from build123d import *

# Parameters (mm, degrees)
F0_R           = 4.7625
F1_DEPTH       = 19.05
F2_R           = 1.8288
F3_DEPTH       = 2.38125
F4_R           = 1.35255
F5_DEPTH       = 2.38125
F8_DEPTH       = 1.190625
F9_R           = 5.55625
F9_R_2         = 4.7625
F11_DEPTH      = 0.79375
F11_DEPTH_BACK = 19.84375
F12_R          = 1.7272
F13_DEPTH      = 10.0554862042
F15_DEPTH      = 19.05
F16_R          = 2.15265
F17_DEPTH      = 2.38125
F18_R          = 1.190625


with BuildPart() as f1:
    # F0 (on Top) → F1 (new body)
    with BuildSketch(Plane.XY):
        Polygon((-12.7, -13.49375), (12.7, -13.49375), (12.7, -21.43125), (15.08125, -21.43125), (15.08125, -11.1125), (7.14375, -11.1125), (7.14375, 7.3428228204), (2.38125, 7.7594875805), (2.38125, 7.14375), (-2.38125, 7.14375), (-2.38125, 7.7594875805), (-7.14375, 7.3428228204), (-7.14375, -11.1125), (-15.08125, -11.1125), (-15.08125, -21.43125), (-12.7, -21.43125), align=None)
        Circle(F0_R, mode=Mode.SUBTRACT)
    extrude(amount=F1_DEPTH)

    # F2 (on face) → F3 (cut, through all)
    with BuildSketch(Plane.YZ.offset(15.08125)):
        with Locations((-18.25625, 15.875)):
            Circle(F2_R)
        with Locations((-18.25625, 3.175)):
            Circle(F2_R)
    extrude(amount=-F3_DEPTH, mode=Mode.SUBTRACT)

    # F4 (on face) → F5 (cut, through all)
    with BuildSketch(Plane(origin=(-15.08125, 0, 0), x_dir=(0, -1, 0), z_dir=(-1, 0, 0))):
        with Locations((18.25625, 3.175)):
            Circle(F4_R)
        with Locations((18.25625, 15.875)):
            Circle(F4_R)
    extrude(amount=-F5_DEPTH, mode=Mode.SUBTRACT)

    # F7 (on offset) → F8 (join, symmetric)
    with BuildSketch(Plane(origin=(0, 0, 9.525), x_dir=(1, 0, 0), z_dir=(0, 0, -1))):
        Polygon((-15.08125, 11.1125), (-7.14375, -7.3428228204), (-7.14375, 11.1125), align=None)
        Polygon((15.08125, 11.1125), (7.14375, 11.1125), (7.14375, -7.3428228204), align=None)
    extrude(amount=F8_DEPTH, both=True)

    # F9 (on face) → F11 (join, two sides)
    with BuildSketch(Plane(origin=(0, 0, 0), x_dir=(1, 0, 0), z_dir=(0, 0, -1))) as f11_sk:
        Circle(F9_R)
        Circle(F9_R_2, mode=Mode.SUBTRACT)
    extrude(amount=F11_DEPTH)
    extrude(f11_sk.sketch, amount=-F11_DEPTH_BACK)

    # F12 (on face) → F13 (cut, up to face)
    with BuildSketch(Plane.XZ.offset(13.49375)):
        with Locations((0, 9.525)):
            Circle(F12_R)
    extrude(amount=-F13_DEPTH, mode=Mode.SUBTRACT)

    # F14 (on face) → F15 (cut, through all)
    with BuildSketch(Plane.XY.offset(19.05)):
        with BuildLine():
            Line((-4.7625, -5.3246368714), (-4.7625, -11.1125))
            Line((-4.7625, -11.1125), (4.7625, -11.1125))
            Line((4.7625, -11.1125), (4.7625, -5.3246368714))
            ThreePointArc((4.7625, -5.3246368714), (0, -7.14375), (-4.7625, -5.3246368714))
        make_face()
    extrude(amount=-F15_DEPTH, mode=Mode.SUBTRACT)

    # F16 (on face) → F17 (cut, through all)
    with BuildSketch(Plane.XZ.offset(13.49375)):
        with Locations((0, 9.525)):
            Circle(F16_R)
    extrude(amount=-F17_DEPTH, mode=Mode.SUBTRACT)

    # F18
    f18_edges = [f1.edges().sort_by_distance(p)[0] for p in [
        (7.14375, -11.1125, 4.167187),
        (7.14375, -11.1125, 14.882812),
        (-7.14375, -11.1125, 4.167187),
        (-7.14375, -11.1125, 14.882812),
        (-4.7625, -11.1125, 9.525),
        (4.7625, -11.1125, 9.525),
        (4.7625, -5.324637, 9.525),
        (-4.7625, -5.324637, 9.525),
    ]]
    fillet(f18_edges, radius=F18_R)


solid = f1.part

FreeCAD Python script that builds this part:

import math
import FreeCAD as App
import Part
import Sketcher
from FreeCAD import Vector
Q = App.Units.Quantity


def edges_at(feature, points):
    """Names of the edges that pass closest to the given points."""
    edges = feature.Shape.Edges
    near = lambda p: min(range(len(edges)), key=lambda i: edges[i].distToShape(Part.Vertex(*p))[0])
    return sorted({f"Edge{near(p) + 1}" for p in points})


def add_polygon(sketch, points):
    """Adds a closed chain of lines whose ends are joined by coincident constraints."""
    first, n = sketch.GeometryCount, len(points)
    for a, b in zip(points, points[1:] + points[:1]):
        sketch.addGeometry(Part.LineSegment(App.Vector(*a, 0), App.Vector(*b, 0)), False)
    for i in range(n):
        sketch.addConstraint(Sketcher.Constraint("Coincident", first + i, 2, first + (i + 1) % n, 1))

doc = App.newDocument("Part")
params = doc.addObject("Spreadsheet::Sheet", "Params")
for row, (alias, value) in enumerate([
    ("sketch1_width", "1 in"),
    ("sketch1_diameter", "0.375 in"),
    ("sketch1_width2", "0.09375 in"),
    ("sketch1_width3", "0.3125 in"),
    ("sketch1_height", "0.40625 in"),
    ("pad1_length", "0.75 in"),
    ("sketch2_diameter", "0.144 in"),
    ("pocket1_length", "0.09375 in"),
    ("sketch4_width", "0.3125 in"),
    ("pad2_length", "0.09375 in"),
    ("sketch5_diameter", "0.4375 in"),
    ("sketch5_diameter2", "0.375 in"),
    ("pad3_length", "0.03125 in"),
    ("pad3_length2", "0.78125 in"),
    ("sketch6_diameter", "0.136 in"),
    ("pocket3_length", "10.055486 mm"),
    ("sketch7_radius", "0.28125 in"),
    ("sketch7_width", "0.375 in"),
    ("pocket5_length", "0.09375 in"),
    ("fillet_radius", "0.046875 in"),
], start=1):
    params.set(f"A{row}", alias)
    params.set(f"B{row}", "=" + value)
    params.setAlias(f"B{row}", alias)

body = doc.addObject("PartDesign::Body", "Body")

# Sketch on XY plane
sketch1 = body.newObject("Sketcher::SketchObject", "Sketch")
sketch1.AttachmentSupport = (doc.getObject("XY_Plane"), [""])
sketch1.MapMode = "FlatFace"
add_polygon(sketch1, [(-12.7, -13.5), (12.7, -13.5), (12.7, -21.4), (15.1, -21.4), (15.1, -11.1), (7.1, -11.1), (7.1, 7.3), (2.4, 7.8), (2.4, 7.1), (-2.4, 7.1), (-2.4, 7.8), (-7.1, 7.3), (-7.1, -11.1), (-15.1, -11.1), (-15.1, -21.4), (-12.7, -21.4)])  # lines 0-15
sketch1.addGeometry(Part.Circle(Vector(0, 0, 0), Vector(0, 0, 1), 4.8), False)  # 16
sketch1.addConstraint(Sketcher.Constraint("Horizontal", 0))
sketch1.addConstraint(Sketcher.Constraint("Vertical", 1))
sketch1.addConstraint(Sketcher.Constraint("Horizontal", 2))
sketch1.addConstraint(Sketcher.Constraint("Vertical", 3))
sketch1.addConstraint(Sketcher.Constraint("Horizontal", 4))
sketch1.addConstraint(Sketcher.Constraint("Vertical", 5))
sketch1.addConstraint(Sketcher.Constraint("Vertical", 7))
sketch1.addConstraint(Sketcher.Constraint("Horizontal", 8))
sketch1.addConstraint(Sketcher.Constraint("Vertical", 9))
sketch1.addConstraint(Sketcher.Constraint("Vertical", 11))
sketch1.addConstraint(Sketcher.Constraint("Horizontal", 12))
sketch1.addConstraint(Sketcher.Constraint("Vertical", 13))
sketch1.addConstraint(Sketcher.Constraint("Horizontal", 14))
sketch1.addConstraint(Sketcher.Constraint("Vertical", 15))
sketch1.addConstraint(Sketcher.Constraint("Coincident", 16, 3, -1, 1))
sketch1.addConstraint(Sketcher.Constraint("Symmetric", 6, 2, 9, 2, -2))
sketch1.addConstraint(Sketcher.Constraint("Symmetric", 5, 2, 10, 2, -2))
sketch1.addConstraint(Sketcher.Constraint("Symmetric", 3, 2, 12, 2, -2))
sketch1.addConstraint(Sketcher.Constraint("Symmetric", 1, 2, 14, 2, -2))
sketch1.addConstraint(Sketcher.Constraint("Equal", 12, 1))
sketch1.addConstraint(Sketcher.Constraint("DistanceX", 0, 1, 0, 2, Q("1 in")))
sketch1.addConstraint(Sketcher.Constraint("Diameter", 16, Q("0.375 in")))
sketch1.addConstraint(Sketcher.Constraint("Angle", 6, Q("175 deg")))
sketch1.addConstraint(Sketcher.Constraint("DistanceX", 6, 2, 3, 2, Q("0.5 in")))
sketch1.addConstraint(Sketcher.Constraint("DistanceX", 2, 1, 2, 2, Q("0.09375 in")))
sketch1.addConstraint(Sketcher.Constraint("DistanceX", 4, 2, 4, 1, Q("0.3125 in")))
sketch1.addConstraint(Sketcher.Constraint("DistanceY", 3, 1, 3, 2, Q("0.40625 in")))
sketch1.addConstraint(Sketcher.Constraint("DistanceY", 0, 2, -1, 1, Q("0.53125 in")))
sketch1.addConstraint(Sketcher.Constraint("DistanceY", -1, 1, 7, 2, Q("0.28125 in")))
sketch1.addConstraint(Sketcher.Constraint("DistanceY", 5, 1, 5, 2, 18.455323))
sketch1.setExpression("Constraints[36]", "Params.sketch1_width")
sketch1.setExpression("Constraints[37]", "Params.sketch1_diameter")
sketch1.setExpression("Constraints[40]", "Params.sketch1_width2")
sketch1.setExpression("Constraints[41]", "Params.sketch1_width3")
sketch1.setExpression("Constraints[42]", "Params.sketch1_height")
pad1 = body.newObject("PartDesign::Pad", "Pad")
pad1.Profile = sketch1
pad1.setExpression("Length", "Params.pad1_length")

# Sketch on YZ plane
sketch2 = body.newObject("Sketcher::SketchObject", "Sketch001")
sketch2.AttachmentSupport = (doc.getObject("YZ_Plane"), [""])
sketch2.MapMode = "FlatFace"
sketch2.AttachmentOffset = App.Placement(Vector(0, 0, 0.59375 * 25.4), App.Rotation())
sketch2.addGeometry(Part.Circle(Vector(-18.3, 15.9, 0), Vector(0, 0, 1), 1.8), False)
sketch2.addGeometry(Part.Circle(Vector(-18.3, 3.2, 0), Vector(0, 0, 1), 1.8), False)
sketch2.addConstraint(Sketcher.Constraint("Equal", 0, 1))
sketch2.addConstraint(Sketcher.Constraint("Vertical", 0, 3, 1, 3))
sketch2.addConstraint(Sketcher.Constraint("Diameter", 0, Q("0.144 in")))
sketch2.addConstraint(Sketcher.Constraint("DistanceY", 1, 3, 0, 3, Q("0.5 in")))
sketch2.addConstraint(Sketcher.Constraint("DistanceX", 0, 3, -1, 1, Q("0.71875 in")))
sketch2.addConstraint(Sketcher.Constraint("DistanceY", -1, 1, 0, 3, Q("0.625 in")))
sketch2.setExpression("Constraints[2]", "Params.sketch2_diameter")
pocket1 = body.newObject("PartDesign::Pocket", "Pocket")
pocket1.Profile = sketch2
pocket1.setExpression("Length", "Params.pocket1_length")

# Sketch on YZ plane
sketch3 = body.newObject("Sketcher::SketchObject", "Sketch002")
sketch3.AttachmentSupport = (doc.getObject("YZ_Plane"), [""])
sketch3.MapMode = "FlatFace"
sketch3.AttachmentOffset = App.Placement(Vector(0, 0, -0.59375 * 25.4), App.Rotation())
sketch3.addGeometry(Part.Circle(Vector(-18.3, 3.2, 0), Vector(0, 0, 1), 1.4), False)
sketch3.addGeometry(Part.Circle(Vector(-18.3, 15.9, 0), Vector(0, 0, 1), 1.4), False)
sketch3.addConstraint(Sketcher.Constraint("Equal", 0, 1))
sketch3.addConstraint(Sketcher.Constraint("Vertical", 0, 3, 1, 3))
sketch3.addConstraint(Sketcher.Constraint("Diameter", 0, Q("0.1065 in")))
sketch3.addConstraint(Sketcher.Constraint("DistanceY", 0, 3, 1, 3, Q("0.5 in")))
sketch3.addConstraint(Sketcher.Constraint("DistanceX", 0, 3, -1, 1, Q("0.71875 in")))
sketch3.addConstraint(Sketcher.Constraint("DistanceY", -1, 1, 0, 3, Q("0.125 in")))
pocket2 = body.newObject("PartDesign::Pocket", "Pocket001")
pocket2.Profile = sketch3
pocket2.Type = "ThroughAll"
pocket2.Reversed = True

# Sketch on XY plane
sketch4 = body.newObject("Sketcher::SketchObject", "Sketch003")
sketch4.AttachmentSupport = (doc.getObject("XY_Plane"), [""])
sketch4.MapMode = "FlatFace"
sketch4.AttachmentOffset = App.Placement(Vector(0, 0, 0.375 * 25.4), App.Rotation())
add_polygon(sketch4, [(-15, -11), (-7, 7), (-7, -11)])  # lines 0-2
add_polygon(sketch4, [(15, -11), (7, -11), (7, 7)])  # lines 3-5
sketch4.addConstraint(Sketcher.Constraint("Vertical", 1))
sketch4.addConstraint(Sketcher.Constraint("Horizontal", 2))
sketch4.addConstraint(Sketcher.Constraint("Horizontal", 3))
sketch4.addConstraint(Sketcher.Constraint("Vertical", 4))
sketch4.addConstraint(Sketcher.Constraint("Symmetric", 1, 2, 3, 2, -2))
sketch4.addConstraint(Sketcher.Constraint("Horizontal", 0, 2, 4, 2))
sketch4.addConstraint(Sketcher.Constraint("Equal", 2, 3))
sketch4.addConstraint(Sketcher.Constraint("DistanceX", 2, 2, 2, 1, Q("0.3125 in")))
sketch4.addConstraint(Sketcher.Constraint("DistanceX", 0, 2, -1, 1, Q("0.28125 in")))
sketch4.addConstraint(Sketcher.Constraint("DistanceY", 1, 2, -1, 1, Q("0.4375 in")))
sketch4.addConstraint(Sketcher.Constraint("Distance", 0, 20.089869))
sketch4.setExpression("Constraints[13]", "Params.sketch4_width")
pad2 = body.newObject("PartDesign::Pad", "Pad001")
pad2.Profile = sketch4
pad2.setExpression("Length", "Params.pad2_length")
pad2.Midplane = True

# Sketch on XY plane
sketch5 = body.newObject("Sketcher::SketchObject", "Sketch004")
sketch5.AttachmentSupport = (doc.getObject("XY_Plane"), [""])
sketch5.MapMode = "FlatFace"
sketch5.addGeometry(Part.Circle(Vector(0, 0, 0), Vector(0, 0, 1), 5.6), False)
sketch5.addGeometry(Part.Circle(Vector(0, 0, 0), Vector(0, 0, 1), 4.8), False)
sketch5.addConstraint(Sketcher.Constraint("Coincident", 0, 3, -1, 1))
sketch5.addConstraint(Sketcher.Constraint("Coincident", 1, 3, -1, 1))
sketch5.addConstraint(Sketcher.Constraint("Diameter", 0, Q("0.4375 in")))
sketch5.addConstraint(Sketcher.Constraint("Diameter", 1, Q("0.375 in")))
sketch5.setExpression("Constraints[2]", "Params.sketch5_diameter")
sketch5.setExpression("Constraints[3]", "Params.sketch5_diameter2")
pad3 = body.newObject("PartDesign::Pad", "Pad002")
pad3.Profile = sketch5
pad3.Type = "TwoLengths"
pad3.setExpression("Length", "Params.pad3_length")
pad3.setExpression("Length2", "Params.pad3_length2")
pad3.Reversed = True

# Sketch on XZ plane
sketch6 = body.newObject("Sketcher::SketchObject", "Sketch005")
sketch6.AttachmentSupport = (doc.getObject("XZ_Plane"), [""])
sketch6.MapMode = "FlatFace"
sketch6.AttachmentOffset = App.Placement(Vector(0, 0, 0.53125 * 25.4), App.Rotation())
sketch6.addGeometry(Part.Circle(Vector(0, 9.5, 0), Vector(0, 0, 1), 1.7), False)
sketch6.addConstraint(Sketcher.Constraint("PointOnObject", 0, 3, -2))
sketch6.addConstraint(Sketcher.Constraint("Diameter", 0, Q("0.136 in")))
sketch6.addConstraint(Sketcher.Constraint("DistanceY", -1, 1, 0, 3, Q("0.375 in")))
sketch6.setExpression("Constraints[1]", "Params.sketch6_diameter")
pocket3 = body.newObject("PartDesign::Pocket", "Pocket002")
pocket3.Profile = sketch6
pocket3.setExpression("Length", "Params.pocket3_length")

# Sketch on XY plane
sketch7 = body.newObject("Sketcher::SketchObject", "Sketch006")
sketch7.AttachmentSupport = (doc.getObject("XY_Plane"), [""])
sketch7.MapMode = "FlatFace"
sketch7.AttachmentOffset = App.Placement(Vector(0, 0, 0.75 * 25.4), App.Rotation())
sketch7.addGeometry(Part.LineSegment(Vector(-5, -5, 0), Vector(-5, -11, 0)), False)
sketch7.addGeometry(Part.LineSegment(Vector(-5, -11, 0), Vector(5, -11, 0)), False)
sketch7.addGeometry(Part.LineSegment(Vector(5, -11, 0), Vector(5, -5, 0)), False)
sketch7.addGeometry(Part.ArcOfCircle(Part.Circle(Vector(0, 0, 0), Vector(0, 0, 1), 7), math.radians(-132), math.radians(-48)), False)
sketch7.addConstraint(Sketcher.Constraint("Coincident", 0, 2, 1, 1))
sketch7.addConstraint(Sketcher.Constraint("Coincident", 1, 2, 2, 1))
sketch7.addConstraint(Sketcher.Constraint("Coincident", 2, 2, 3, 2))
sketch7.addConstraint(Sketcher.Constraint("Coincident", 3, 1, 0, 1))
sketch7.addConstraint(Sketcher.Constraint("Vertical", 0))
sketch7.addConstraint(Sketcher.Constraint("Horizontal", 1))
sketch7.addConstraint(Sketcher.Constraint("Vertical", 2))
sketch7.addConstraint(Sketcher.Constraint("Coincident", 3, 3, -1, 1))
sketch7.addConstraint(Sketcher.Constraint("Horizontal", 2, 2, 3, 1))
sketch7.addConstraint(Sketcher.Constraint("Radius", 3, Q("0.28125 in")))
sketch7.addConstraint(Sketcher.Constraint("DistanceX", 1, 1, 1, 2, Q("0.375 in")))
sketch7.addConstraint(Sketcher.Constraint("DistanceY", 0, 2, -1, 1, Q("0.4375 in")))
sketch7.setExpression("Constraints[9]", "Params.sketch7_radius")
sketch7.setExpression("Constraints[10]", "Params.sketch7_width")
pocket4 = body.newObject("PartDesign::Pocket", "Pocket003")
pocket4.Profile = sketch7
pocket4.Type = "ThroughAll"

# Sketch on XZ plane
sketch8 = body.newObject("Sketcher::SketchObject", "Sketch007")
sketch8.AttachmentSupport = (doc.getObject("XZ_Plane"), [""])
sketch8.MapMode = "FlatFace"
sketch8.AttachmentOffset = App.Placement(Vector(0, 0, 0.53125 * 25.4), App.Rotation())
sketch8.addGeometry(Part.Circle(Vector(0, 9.5, 0), Vector(0, 0, 1), 2.2), False)
sketch8.addConstraint(Sketcher.Constraint("PointOnObject", 0, 3, -2))
sketch8.addConstraint(Sketcher.Constraint("Diameter", 0, Q("0.1695 in")))
sketch8.addConstraint(Sketcher.Constraint("DistanceY", -1, 1, 0, 3, Q("0.375 in")))
pocket5 = body.newObject("PartDesign::Pocket", "Pocket004")
pocket5.Profile = sketch8
pocket5.setExpression("Length", "Params.pocket5_length")
doc.recompute()

fillet = body.newObject("PartDesign::Fillet", "Fillet")
fillet.Base = (pocket5, edges_at(pocket5, [
    (7.144, -11.113, 4.167),
    (7.144, -11.113, 14.883),
    (-7.144, -11.113, 4.167),
    (-7.144, -11.113, 14.883),
    (-4.763, -11.113, 9.525),
    (4.763, -11.113, 9.525),
    (4.763, -5.325, 9.525),
    (-4.763, -5.325, 9.525),
]))
fillet.setExpression("Radius", "Params.fillet_radius")

doc.recompute()
